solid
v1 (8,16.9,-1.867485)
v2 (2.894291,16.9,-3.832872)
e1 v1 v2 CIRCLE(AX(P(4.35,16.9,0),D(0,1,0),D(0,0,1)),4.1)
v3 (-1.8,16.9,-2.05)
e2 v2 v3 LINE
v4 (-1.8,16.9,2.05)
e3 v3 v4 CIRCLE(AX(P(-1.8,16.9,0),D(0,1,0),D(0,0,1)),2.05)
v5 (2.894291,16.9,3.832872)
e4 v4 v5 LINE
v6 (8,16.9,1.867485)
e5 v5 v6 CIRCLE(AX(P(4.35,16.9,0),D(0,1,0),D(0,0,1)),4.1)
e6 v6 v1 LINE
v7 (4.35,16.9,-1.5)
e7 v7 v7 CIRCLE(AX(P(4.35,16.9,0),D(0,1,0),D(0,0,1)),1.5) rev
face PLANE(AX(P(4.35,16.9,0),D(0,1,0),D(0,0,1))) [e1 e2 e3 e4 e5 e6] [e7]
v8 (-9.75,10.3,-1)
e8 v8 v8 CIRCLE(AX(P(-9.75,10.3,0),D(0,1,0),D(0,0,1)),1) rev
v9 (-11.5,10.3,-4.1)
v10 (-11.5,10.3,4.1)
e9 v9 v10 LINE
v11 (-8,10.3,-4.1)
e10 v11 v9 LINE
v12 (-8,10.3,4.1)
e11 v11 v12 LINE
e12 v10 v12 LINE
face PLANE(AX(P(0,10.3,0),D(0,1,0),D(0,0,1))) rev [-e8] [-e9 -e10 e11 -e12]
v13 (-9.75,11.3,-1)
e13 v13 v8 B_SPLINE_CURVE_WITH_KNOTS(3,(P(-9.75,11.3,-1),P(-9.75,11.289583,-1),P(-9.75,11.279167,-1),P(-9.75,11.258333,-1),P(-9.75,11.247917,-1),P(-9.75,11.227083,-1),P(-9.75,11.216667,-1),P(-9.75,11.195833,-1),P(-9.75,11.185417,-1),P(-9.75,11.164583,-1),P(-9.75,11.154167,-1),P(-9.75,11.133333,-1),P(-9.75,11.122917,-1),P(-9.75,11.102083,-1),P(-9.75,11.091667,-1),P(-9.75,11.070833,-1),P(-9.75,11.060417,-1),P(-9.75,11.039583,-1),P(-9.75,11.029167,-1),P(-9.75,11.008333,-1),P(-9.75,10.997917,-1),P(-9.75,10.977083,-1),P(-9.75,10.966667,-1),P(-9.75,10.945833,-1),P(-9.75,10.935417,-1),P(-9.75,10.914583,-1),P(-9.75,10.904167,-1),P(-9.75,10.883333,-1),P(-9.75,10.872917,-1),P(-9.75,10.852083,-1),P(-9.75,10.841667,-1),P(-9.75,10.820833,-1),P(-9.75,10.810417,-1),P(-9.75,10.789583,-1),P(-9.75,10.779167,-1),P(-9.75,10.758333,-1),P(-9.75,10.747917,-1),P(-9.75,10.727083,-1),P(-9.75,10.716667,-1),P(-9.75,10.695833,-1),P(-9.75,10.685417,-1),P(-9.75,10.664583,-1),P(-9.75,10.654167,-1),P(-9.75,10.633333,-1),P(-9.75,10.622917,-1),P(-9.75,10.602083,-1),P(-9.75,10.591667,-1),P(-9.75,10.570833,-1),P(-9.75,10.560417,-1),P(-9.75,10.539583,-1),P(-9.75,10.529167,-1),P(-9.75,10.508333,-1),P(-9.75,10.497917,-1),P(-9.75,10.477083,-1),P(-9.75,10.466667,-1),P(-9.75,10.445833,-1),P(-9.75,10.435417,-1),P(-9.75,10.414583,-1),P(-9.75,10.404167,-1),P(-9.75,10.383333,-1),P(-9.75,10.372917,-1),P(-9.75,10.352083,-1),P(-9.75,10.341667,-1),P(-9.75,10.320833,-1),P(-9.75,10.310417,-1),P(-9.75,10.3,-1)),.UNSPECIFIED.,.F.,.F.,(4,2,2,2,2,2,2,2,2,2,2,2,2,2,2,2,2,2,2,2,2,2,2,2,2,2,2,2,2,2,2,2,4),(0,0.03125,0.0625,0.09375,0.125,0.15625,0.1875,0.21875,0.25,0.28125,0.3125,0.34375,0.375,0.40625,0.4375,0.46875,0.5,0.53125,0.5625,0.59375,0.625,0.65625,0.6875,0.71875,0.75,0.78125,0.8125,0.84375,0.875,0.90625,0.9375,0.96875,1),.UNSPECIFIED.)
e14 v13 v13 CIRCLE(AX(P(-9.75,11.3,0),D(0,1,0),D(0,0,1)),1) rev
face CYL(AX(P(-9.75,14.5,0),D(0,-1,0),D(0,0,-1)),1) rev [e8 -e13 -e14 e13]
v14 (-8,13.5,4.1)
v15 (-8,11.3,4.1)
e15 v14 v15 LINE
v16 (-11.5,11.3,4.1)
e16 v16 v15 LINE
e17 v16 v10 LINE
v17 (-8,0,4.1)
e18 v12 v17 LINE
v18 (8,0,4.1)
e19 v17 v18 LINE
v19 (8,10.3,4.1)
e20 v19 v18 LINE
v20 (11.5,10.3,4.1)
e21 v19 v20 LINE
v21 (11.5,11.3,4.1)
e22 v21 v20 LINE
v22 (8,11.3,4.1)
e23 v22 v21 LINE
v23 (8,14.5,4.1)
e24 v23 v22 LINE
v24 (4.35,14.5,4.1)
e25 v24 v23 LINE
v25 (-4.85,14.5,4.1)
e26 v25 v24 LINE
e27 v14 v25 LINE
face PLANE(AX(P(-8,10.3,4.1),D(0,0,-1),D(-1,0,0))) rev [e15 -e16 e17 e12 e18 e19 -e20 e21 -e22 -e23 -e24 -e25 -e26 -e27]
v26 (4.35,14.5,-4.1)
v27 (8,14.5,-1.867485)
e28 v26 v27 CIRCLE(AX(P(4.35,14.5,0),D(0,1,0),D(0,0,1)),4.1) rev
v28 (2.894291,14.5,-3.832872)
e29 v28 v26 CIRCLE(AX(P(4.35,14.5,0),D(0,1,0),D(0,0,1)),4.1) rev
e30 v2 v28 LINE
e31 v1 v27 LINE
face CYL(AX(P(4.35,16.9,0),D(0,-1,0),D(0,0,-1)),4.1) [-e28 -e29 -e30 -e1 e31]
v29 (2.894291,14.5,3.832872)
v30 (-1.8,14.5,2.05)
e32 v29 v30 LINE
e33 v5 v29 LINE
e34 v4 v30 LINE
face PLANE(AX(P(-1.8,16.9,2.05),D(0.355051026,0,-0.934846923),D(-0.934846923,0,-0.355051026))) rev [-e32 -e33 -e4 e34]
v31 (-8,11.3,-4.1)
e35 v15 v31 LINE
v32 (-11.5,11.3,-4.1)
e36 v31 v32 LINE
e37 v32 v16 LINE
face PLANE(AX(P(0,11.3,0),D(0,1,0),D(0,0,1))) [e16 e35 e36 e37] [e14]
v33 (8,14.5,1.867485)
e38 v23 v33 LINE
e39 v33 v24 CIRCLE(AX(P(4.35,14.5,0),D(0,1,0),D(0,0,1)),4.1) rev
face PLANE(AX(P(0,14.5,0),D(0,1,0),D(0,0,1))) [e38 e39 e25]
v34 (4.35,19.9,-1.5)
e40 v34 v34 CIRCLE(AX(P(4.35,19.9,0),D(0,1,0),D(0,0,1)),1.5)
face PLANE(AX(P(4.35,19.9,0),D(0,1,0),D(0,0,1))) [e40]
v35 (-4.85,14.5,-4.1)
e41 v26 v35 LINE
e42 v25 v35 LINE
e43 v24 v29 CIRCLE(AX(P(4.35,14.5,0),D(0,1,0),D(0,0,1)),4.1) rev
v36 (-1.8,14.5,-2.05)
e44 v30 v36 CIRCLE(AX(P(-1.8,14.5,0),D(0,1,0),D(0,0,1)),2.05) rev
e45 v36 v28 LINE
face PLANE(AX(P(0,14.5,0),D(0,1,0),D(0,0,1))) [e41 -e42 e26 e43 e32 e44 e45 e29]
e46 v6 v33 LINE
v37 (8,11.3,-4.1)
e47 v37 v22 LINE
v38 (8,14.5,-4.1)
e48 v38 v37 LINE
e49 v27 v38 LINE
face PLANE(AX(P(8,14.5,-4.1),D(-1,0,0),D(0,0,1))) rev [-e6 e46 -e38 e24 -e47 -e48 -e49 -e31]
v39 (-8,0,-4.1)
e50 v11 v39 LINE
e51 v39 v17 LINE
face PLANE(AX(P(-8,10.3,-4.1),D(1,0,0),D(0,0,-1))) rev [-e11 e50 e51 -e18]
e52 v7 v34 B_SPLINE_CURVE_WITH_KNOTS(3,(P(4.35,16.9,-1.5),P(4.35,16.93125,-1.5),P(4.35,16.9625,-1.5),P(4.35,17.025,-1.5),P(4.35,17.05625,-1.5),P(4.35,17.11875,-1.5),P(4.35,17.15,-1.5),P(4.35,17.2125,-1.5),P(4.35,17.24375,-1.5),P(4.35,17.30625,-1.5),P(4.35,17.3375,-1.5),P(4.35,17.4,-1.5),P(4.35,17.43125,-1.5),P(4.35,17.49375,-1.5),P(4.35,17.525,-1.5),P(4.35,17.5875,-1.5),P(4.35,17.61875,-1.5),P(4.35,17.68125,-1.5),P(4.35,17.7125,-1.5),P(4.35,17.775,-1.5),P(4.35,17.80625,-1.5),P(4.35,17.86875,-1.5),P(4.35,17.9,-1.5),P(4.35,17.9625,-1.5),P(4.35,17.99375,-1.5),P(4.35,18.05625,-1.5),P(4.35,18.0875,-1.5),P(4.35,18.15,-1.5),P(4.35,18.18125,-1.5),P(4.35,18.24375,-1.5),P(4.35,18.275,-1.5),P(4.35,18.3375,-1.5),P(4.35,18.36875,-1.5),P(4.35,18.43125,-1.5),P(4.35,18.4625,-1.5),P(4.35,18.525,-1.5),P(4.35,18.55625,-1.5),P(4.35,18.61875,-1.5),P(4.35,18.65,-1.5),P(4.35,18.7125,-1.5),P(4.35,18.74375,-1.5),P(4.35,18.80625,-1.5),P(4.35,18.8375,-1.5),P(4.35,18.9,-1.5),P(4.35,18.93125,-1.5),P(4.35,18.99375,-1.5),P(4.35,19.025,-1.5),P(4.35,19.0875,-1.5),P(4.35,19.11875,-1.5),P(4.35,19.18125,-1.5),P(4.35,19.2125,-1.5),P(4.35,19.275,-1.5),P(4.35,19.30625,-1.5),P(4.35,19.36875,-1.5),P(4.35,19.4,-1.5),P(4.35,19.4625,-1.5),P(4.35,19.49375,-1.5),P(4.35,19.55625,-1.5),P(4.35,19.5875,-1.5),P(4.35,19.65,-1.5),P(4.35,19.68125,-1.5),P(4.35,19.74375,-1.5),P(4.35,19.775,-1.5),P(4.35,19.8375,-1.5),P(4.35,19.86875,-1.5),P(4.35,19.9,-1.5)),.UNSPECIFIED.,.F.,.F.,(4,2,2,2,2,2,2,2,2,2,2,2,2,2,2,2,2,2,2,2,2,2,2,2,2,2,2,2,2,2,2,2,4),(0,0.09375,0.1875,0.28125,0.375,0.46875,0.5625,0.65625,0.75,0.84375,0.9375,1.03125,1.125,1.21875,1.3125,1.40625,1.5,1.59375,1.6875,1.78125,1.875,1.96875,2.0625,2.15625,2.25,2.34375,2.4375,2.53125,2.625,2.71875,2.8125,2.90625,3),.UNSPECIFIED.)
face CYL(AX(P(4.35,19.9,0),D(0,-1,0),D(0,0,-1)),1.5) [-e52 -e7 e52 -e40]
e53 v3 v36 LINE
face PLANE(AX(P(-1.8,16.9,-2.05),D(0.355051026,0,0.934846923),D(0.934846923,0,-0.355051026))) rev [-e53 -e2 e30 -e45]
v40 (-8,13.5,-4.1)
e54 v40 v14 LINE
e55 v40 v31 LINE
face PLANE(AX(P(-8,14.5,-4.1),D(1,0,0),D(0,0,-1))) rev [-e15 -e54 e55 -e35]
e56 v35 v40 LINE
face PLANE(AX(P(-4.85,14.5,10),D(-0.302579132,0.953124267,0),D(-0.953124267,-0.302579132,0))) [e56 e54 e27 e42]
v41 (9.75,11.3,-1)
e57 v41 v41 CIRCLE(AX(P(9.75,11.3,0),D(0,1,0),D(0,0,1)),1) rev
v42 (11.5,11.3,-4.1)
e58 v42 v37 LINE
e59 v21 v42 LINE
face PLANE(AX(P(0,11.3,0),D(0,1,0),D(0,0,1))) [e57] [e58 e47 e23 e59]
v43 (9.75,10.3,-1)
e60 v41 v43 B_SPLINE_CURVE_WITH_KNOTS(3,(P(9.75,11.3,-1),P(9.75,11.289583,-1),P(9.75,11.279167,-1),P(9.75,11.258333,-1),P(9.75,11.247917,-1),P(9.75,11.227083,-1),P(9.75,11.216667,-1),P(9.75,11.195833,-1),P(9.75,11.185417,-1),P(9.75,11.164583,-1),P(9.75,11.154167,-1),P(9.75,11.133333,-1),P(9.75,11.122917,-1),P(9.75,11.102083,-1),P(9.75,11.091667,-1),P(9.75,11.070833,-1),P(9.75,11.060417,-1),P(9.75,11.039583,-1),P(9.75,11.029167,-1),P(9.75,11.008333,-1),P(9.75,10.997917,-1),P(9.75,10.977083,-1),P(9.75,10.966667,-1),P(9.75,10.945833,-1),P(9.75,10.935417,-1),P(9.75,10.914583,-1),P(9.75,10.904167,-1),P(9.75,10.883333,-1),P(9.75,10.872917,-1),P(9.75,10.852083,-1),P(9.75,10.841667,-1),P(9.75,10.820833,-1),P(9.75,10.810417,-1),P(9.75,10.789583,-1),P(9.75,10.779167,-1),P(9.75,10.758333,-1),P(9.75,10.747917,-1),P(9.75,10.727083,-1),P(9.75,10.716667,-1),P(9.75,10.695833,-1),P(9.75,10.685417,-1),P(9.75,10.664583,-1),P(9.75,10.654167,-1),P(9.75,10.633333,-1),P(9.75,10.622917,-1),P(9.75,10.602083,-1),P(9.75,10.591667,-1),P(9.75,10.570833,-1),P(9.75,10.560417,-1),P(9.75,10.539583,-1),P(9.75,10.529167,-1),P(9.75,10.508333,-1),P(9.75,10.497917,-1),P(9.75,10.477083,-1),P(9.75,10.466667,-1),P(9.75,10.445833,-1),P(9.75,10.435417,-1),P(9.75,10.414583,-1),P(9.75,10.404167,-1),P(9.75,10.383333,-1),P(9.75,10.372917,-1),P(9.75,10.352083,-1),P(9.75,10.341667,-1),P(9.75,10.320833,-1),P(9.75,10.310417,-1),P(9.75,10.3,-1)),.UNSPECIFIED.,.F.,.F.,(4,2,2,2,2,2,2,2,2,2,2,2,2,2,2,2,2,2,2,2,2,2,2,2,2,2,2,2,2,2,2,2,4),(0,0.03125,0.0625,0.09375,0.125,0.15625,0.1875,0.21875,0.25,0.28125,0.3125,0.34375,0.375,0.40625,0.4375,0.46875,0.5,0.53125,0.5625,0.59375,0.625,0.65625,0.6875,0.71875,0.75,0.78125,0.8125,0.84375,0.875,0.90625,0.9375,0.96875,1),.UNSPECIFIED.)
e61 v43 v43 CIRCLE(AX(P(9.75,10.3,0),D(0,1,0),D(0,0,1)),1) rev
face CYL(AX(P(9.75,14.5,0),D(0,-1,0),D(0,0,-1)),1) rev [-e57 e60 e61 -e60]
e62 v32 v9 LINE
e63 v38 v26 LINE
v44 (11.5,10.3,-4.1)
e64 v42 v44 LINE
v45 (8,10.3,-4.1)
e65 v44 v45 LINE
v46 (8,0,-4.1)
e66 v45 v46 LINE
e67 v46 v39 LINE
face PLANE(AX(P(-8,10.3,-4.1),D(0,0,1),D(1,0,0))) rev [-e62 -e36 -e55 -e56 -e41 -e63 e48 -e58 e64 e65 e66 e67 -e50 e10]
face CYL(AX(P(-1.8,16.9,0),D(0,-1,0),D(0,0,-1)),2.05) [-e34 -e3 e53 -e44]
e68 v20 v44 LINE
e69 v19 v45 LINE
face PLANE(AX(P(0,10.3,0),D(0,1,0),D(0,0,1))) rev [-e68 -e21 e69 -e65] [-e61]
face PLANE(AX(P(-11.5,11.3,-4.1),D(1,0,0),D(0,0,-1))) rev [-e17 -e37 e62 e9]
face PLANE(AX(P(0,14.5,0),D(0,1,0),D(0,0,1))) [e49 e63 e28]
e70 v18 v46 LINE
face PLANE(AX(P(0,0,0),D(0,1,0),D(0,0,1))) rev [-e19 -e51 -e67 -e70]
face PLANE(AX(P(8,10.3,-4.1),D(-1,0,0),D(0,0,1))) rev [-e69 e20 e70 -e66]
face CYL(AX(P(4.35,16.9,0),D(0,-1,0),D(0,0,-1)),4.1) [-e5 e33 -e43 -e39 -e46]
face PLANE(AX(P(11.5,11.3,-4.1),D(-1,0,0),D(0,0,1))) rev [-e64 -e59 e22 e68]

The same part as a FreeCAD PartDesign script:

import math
import FreeCAD as App
import Part
import Sketcher
from FreeCAD import Vector

doc = App.newDocument("Part")
body = doc.addObject("PartDesign::Body", "Body")

# Sketch on XZ plane
sketch1 = body.newObject("Sketcher::SketchObject", "Sketch")
sketch1.AttachmentSupport = (doc.getObject("XZ_Plane"), [""])
sketch1.MapMode = "FlatFace"
sketch1.addGeometry(Part.LineSegment(Vector(-8, -4.1, 0), Vector(-8, 4.1, 0)), False)
sketch1.addGeometry(Part.LineSegment(Vector(-8, 4.1, 0), Vector(8, 4.1, 0)), False)
sketch1.addGeometry(Part.LineSegment(Vector(8, 4.1, 0), Vector(8, -4.1, 0)), False)
sketch1.addGeometry(Part.LineSegment(Vector(8, -4.1, 0), Vector(-8, -4.1, 0)), False)
sketch1.addConstraint(Sketcher.Constraint("Coincident", 0, 2, 1, 1))
sketch1.addConstraint(Sketcher.Constraint("Coincident", 1, 2, 2, 1))
sketch1.addConstraint(Sketcher.Constraint("Coincident", 2, 2, 3, 1))
sketch1.addConstraint(Sketcher.Constraint("Coincident", 3, 2, 0, 1))
sketch1.addConstraint(Sketcher.Constraint("Vertical", 0))
sketch1.addConstraint(Sketcher.Constraint("Horizontal", 1))
sketch1.addConstraint(Sketcher.Constraint("Vertical", 2))
sketch1.addConstraint(Sketcher.Constraint("Horizontal", 3))
sketch1.addConstraint(Sketcher.Constraint("Symmetric", 0, 2, 2, 2, -1, 1))
sketch1.addConstraint(Sketcher.Constraint("DistanceX", 1, 1, 1, 2, 16.0))
sketch1.addConstraint(Sketcher.Constraint("DistanceY", 0, 1, 0, 2, 8.2))
pad1 = body.newObject("PartDesign::Pad", "Pad")
pad1.Profile = sketch1
pad1.Length = 10.3
pad1.Reversed = True

# Sketch on XZ plane
sketch2 = body.newObject("Sketcher::SketchObject", "Sketch001")
sketch2.AttachmentSupport = (doc.getObject("XZ_Plane"), [""])
sketch2.MapMode = "FlatFace"
sketch2.AttachmentOffset = App.Placement(Vector(0, 0, -10.3), App.Rotation())
sketch2.addGeometry(Part.LineSegment(Vector(-11.5, -4.1, 0), Vector(-11.5, 4.1, 0)), False)
sketch2.addGeometry(Part.LineSegment(Vector(-11.5, 4.1, 0), Vector(11.5, 4.1, 0)), False)
sketch2.addGeometry(Part.LineSegment(Vector(11.5, 4.1, 0), Vector(11.5, -4.1, 0)), False)
sketch2.addGeometry(Part.LineSegment(Vector(11.5, -4.1, 0), Vector(-11.5, -4.1, 0)), False)
sketch2.addConstraint(Sketcher.Constraint("Coincident", 0, 2, 1, 1))
sketch2.addConstraint(Sketcher.Constraint("Coincident", 1, 2, 2, 1))
sketch2.addConstraint(Sketcher.Constraint("Coincident", 2, 2, 3, 1))
sketch2.addConstraint(Sketcher.Constraint("Coincident", 3, 2, 0, 1))
sketch2.addConstraint(Sketcher.Constraint("Vertical", 0))
sketch2.addConstraint(Sketcher.Constraint("Horizontal", 1))
sketch2.addConstraint(Sketcher.Constraint("Vertical", 2))
sketch2.addConstraint(Sketcher.Constraint("Horizontal", 3))
sketch2.addConstraint(Sketcher.Constraint("Symmetric", 0, 2, 2, 2, -1, 1))
sketch2.addConstraint(Sketcher.Constraint("DistanceX", 1, 1, 1, 2, 23.0))
sketch2.addConstraint(Sketcher.Constraint("DistanceY", 0, 1, 0, 2, 8.2))
pad2 = body.newObject("PartDesign::Pad", "Pad001")
pad2.Profile = sketch2
pad2.Length = 1
pad2.Reversed = True

# Sketch on XZ plane
sketch3 = body.newObject("Sketcher::SketchObject", "Sketch002")
sketch3.AttachmentSupport = (doc.getObject("XZ_Plane"), [""])
sketch3.MapMode = "FlatFace"
sketch3.addGeometry(Part.LineSegment(Vector(-8, -4.1, 0), Vector(-8, 4.1, 0)), False)
sketch3.addGeometry(Part.LineSegment(Vector(-8, 4.1, 0), Vector(8, 4.1, 0)), False)
sketch3.addGeometry(Part.LineSegment(Vector(8, 4.1, 0), Vector(8, -4.1, 0)), False)
sketch3.addGeometry(Part.LineSegment(Vector(8, -4.1, 0), Vector(-8, -4.1, 0)), False)
sketch3.addConstraint(Sketcher.Constraint("Coincident", 0, 2, 1, 1))
sketch3.addConstraint(Sketcher.Constraint("Coincident", 1, 2, 2, 1))
sketch3.addConstraint(Sketcher.Constraint("Coincident", 2, 2, 3, 1))
sketch3.addConstraint(Sketcher.Constraint("Coincident", 3, 2, 0, 1))
sketch3.addConstraint(Sketcher.Constraint("Vertical", 0))
sketch3.addConstraint(Sketcher.Constraint("Horizontal", 1))
sketch3.addConstraint(Sketcher.Constraint("Vertical", 2))
sketch3.addConstraint(Sketcher.Constraint("Horizontal", 3))
sketch3.addConstraint(Sketcher.Constraint("Symmetric", 0, 2, 2, 2, -1, 1))
sketch3.addConstraint(Sketcher.Constraint("DistanceX", 1, 1, 1, 2, 16.0))
sketch3.addConstraint(Sketcher.Constraint("DistanceY", 0, 1, 0, 2, 8.2))
pad3 = body.newObject("PartDesign::Pad", "Pad002")
pad3.Profile = sketch3
pad3.Length = 14.5
pad3.Reversed = True

# Sketch on XZ plane
sketch4 = body.newObject("Sketcher::SketchObject", "Sketch003")
sketch4.AttachmentSupport = (doc.getObject("XZ_Plane"), [""])
sketch4.MapMode = "FlatFace"
sketch4.addGeometry(Part.Circle(Vector(-9.75, 0, 0), Vector(0, 0, 1), 1), False)
sketch4.addGeometry(Part.Circle(Vector(9.75, 0, 0), Vector(0, 0, 1), 1), False)
sketch4.addConstraint(Sketcher.Constraint("Equal", 0, 1))
sketch4.addConstraint(Sketcher.Constraint("Symmetric", 0, 3, 1, 3, -1, 1))
sketch4.addConstraint(Sketcher.Constraint("PointOnObject", 0, 3, -1))
sketch4.addConstraint(Sketcher.Constraint("Diameter", 0, 2.0))
sketch4.addConstraint(Sketcher.Constraint("DistanceX", 0, 3, 1, 3, 19.5))
pocket1 = body.newObject("PartDesign::Pocket", "Pocket")
pocket1.Profile = sketch4
pocket1.Length = 14.5

# Sketch on XZ plane
sketch5 = body.newObject("Sketcher::SketchObject", "Sketch004")
sketch5.AttachmentSupport = (doc.getObject("XZ_Plane"), [""])
sketch5.MapMode = "FlatFace"
sketch5.addGeometry(Part.LineSegment(Vector(8, 1.867485, 0), Vector(8, -1.867485, 0)), False)
sketch5.addGeometry(Part.ArcOfCircle(Part.Circle(Vector(4.35, 0, 0), Vector(0, 0, 1), 4.1), math.radians(-110.796572), math.radians(-27.096088)), False)
sketch5.addGeometry(Part.LineSegment(Vector(2.894291, -3.832872, 0), Vector(-1.8, -2.05, 0)), False)
sketch5.addGeometry(Part.ArcOfCircle(Part.Circle(Vector(-1.8, 0, 0), Vector(0, 0, 1), 2.05), math.radians(90), math.radians(270)), False)
sketch5.addGeometry(Part.LineSegment(Vector(-1.8, 2.05, 0), Vector(2.894291, 3.832872, 0)), False)
sketch5.addGeometry(Part.ArcOfCircle(Part.Circle(Vector(4.35, 0, 0), Vector(0, 0, 1), 4.1), math.radians(27.096088), math.radians(110.796572)), False)
sketch5.addConstraint(Sketcher.Constraint("Coincident", 0, 2, 1, 2))
sketch5.addConstraint(Sketcher.Constraint("Tangent", 1, 1, 2, 1))
sketch5.addConstraint(Sketcher.Constraint("Coincident", 2, 2, 3, 2))
sketch5.addConstraint(Sketcher.Constraint("Coincident", 3, 1, 4, 1))
sketch5.addConstraint(Sketcher.Constraint("Tangent", 4, 2, 5, 2))
sketch5.addConstraint(Sketcher.Constraint("Coincident", 5, 1, 0, 1))
sketch5.addConstraint(Sketcher.Constraint("Vertical", 0))
sketch5.addConstraint(Sketcher.Constraint("Coincident", 5, 3, 1, 3))
sketch5.addConstraint(Sketcher.Constraint("Equal", 1, 5))
sketch5.addConstraint(Sketcher.Constraint("Symmetric", 2, 2, 3, 1, -1))
sketch5.addConstraint(Sketcher.Constraint("PointOnObject", 1, 3, -1))
sketch5.addConstraint(Sketcher.Constraint("Vertical", 3, 3, 2, 2))
sketch5.addConstraint(Sketcher.Constraint("Radius", 1, 4.1))
sketch5.addConstraint(Sketcher.Constraint("Radius", 3, 2.05))
sketch5.addConstraint(Sketcher.Constraint("DistanceX", -1, 1, 0, 2, 8.0))
sketch5.addConstraint(Sketcher.Constraint("DistanceX", 3, 3, -1, 1, 1.8))
sketch5.addConstraint(Sketcher.Constraint("DistanceX", -1, 1, 1, 3, 4.35))
pad4 = body.newObject("PartDesign::Pad", "Pad003")
pad4.Profile = sketch5
pad4.Length = 16.9
pad4.Reversed = True

# Sketch on XZ plane
sketch6 = body.newObject("Sketcher::SketchObject", "Sketch005")
sketch6.AttachmentSupport = (doc.getObject("XZ_Plane"), [""])
sketch6.MapMode = "FlatFace"
sketch6.addGeometry(Part.Circle(Vector(4.35, 0, 0), Vector(0, 0, 1), 1.5), False)
sketch6.addConstraint(Sketcher.Constraint("PointOnObject", 0, 3, -1))
sketch6.addConstraint(Sketcher.Constraint("Diameter", 0, 3.0))
sketch6.addConstraint(Sketcher.Constraint("DistanceX", -1, 1, 0, 3, 4.35))
pad5 = body.newObject("PartDesign::Pad", "Pad004")
pad5.Profile = sketch6
pad5.Length = 19.9
pad5.Reversed = True

# Sketch on XY plane
sketch7 = body.newObject("Sketcher::SketchObject", "Sketch006")
sketch7.AttachmentSupport = (doc.getObject("XY_Plane"), [""])
sketch7.MapMode = "FlatFace"
sketch7.addGeometry(Part.LineSegment(Vector(-8, 14.5, 0), Vector(-8, 13.5, 0)), False)
sketch7.addGeometry(Part.LineSegment(Vector(-8, 13.5, 0), Vector(-4.85, 14.5, 0)), False)
sketch7.addGeometry(Part.LineSegment(Vector(-4.85, 14.5, 0), Vector(-8, 14.5, 0)), False)
sketch7.addConstraint(Sketcher.Constraint("Coincident", 0, 2, 1, 1))
sketch7.addConstraint(Sketcher.Constraint("Coincident", 1, 2, 2, 1))
sketch7.addConstraint(Sketcher.Constraint("Coincident", 2, 2, 0, 1))
sketch7.addConstraint(Sketcher.Constraint("Vertical", 0))
sketch7.addConstraint(Sketcher.Constraint("Horizontal", 2))
sketch7.addConstraint(Sketcher.Constraint("DistanceY", 0, 2, 0, 1, 1.0))
sketch7.addConstraint(Sketcher.Constraint("DistanceX", 0, 2, -1, 1, 8.0))
sketch7.addConstraint(Sketcher.Constraint("DistanceX", 2, 2, 2, 1, 3.15))
sketch7.addConstraint(Sketcher.Constraint("DistanceY", -1, 1, 0, 2, 13.5))
pocket2 = body.newObject("PartDesign::Pocket", "Pocket001")
pocket2.Profile = sketch7
pocket2.Type = "ThroughAll"
pocket2.Midplane = True

doc.recompute()
